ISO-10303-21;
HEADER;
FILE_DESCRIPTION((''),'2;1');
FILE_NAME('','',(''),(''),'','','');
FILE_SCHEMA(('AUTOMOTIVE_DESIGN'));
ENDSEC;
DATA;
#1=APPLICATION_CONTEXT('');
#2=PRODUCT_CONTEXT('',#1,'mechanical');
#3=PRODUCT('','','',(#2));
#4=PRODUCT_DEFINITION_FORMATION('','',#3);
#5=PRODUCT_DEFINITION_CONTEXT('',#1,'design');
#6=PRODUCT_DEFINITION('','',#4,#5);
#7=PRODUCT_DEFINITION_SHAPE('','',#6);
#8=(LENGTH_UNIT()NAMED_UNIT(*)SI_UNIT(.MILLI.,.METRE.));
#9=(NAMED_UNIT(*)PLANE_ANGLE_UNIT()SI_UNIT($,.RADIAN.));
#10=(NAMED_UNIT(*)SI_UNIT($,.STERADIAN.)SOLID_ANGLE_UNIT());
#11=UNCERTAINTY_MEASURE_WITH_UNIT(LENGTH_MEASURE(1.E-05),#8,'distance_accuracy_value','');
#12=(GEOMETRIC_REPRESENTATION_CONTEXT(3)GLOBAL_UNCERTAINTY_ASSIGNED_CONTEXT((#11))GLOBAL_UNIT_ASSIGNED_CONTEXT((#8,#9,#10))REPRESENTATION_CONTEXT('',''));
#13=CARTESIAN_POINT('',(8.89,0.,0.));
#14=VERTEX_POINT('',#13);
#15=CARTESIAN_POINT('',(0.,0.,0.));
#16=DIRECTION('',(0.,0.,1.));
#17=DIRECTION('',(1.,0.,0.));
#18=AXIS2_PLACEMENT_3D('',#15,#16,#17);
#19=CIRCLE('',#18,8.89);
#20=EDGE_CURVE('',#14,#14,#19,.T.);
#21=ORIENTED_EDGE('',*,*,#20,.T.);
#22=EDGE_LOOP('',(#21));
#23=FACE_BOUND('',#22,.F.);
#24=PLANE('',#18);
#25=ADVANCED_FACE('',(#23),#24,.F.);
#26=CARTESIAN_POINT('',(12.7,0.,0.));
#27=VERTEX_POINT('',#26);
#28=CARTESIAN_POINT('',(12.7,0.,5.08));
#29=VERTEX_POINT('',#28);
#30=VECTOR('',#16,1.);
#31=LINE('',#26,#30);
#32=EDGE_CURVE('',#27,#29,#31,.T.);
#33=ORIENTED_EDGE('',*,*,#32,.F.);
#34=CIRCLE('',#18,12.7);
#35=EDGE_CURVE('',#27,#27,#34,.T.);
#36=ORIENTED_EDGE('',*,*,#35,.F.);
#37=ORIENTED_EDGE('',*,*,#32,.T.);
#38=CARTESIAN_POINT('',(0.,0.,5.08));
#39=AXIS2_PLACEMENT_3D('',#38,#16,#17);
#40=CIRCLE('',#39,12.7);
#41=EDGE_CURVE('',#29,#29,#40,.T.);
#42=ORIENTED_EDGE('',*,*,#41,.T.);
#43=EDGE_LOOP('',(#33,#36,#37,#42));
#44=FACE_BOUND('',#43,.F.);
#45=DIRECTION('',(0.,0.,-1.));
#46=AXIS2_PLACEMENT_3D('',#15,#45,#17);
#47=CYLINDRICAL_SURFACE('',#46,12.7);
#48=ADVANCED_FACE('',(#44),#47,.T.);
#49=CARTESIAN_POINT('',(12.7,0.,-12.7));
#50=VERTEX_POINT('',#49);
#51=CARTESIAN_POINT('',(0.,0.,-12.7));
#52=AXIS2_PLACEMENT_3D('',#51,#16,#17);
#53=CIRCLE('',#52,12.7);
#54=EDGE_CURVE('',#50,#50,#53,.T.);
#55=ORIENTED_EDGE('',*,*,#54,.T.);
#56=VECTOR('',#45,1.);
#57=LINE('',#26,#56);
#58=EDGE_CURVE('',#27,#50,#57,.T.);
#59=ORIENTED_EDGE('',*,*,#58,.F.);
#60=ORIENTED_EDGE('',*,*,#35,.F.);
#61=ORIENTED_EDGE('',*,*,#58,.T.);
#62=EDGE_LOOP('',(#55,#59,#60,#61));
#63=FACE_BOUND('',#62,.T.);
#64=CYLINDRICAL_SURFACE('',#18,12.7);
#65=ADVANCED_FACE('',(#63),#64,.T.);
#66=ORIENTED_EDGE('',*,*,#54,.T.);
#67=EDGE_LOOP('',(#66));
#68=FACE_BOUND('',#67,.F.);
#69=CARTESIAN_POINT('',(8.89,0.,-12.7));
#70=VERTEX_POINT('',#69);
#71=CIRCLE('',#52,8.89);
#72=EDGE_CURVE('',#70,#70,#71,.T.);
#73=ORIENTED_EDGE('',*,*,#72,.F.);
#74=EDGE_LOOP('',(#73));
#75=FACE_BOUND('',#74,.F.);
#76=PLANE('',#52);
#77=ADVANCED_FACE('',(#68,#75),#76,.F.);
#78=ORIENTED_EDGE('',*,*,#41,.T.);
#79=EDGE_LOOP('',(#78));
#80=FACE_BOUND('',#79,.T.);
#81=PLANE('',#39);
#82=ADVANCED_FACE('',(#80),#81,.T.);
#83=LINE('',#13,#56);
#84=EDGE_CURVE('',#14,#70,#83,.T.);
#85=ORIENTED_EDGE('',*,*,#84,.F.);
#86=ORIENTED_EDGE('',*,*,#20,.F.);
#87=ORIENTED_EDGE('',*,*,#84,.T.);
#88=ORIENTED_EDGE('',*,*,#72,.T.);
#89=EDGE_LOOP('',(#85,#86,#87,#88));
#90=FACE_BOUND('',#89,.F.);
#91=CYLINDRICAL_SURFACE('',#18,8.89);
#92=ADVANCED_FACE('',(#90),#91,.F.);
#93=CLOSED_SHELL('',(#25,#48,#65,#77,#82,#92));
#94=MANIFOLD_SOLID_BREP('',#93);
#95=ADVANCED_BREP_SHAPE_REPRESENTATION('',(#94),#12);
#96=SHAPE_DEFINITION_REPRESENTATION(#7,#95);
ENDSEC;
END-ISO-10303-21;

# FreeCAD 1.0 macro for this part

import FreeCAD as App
import Part
import Sketcher

V = App.Vector
Q = App.Units.Quantity

doc = App.newDocument("Part")
body = doc.addObject("PartDesign::Body", "Body")

sketch1 = body.newObject("Sketcher::SketchObject", "Sketch")
sketch1.AttachmentSupport = (doc.getObject("XY_Plane"), [""])
sketch1.MapMode = "FlatFace"
sketch1.addGeometry(Part.Circle(V(0, 0, 0), V(0, 0, 1), 13), False)
sketch1.addGeometry(Part.Circle(V(0, 0, 0), V(0, 0, 1), 9), False)
sketch1.addConstraint(Sketcher.Constraint("Coincident", 0, 3, -1, 1))
sketch1.addConstraint(Sketcher.Constraint("Coincident", 1, 3, -1, 1))
sketch1.addConstraint(Sketcher.Constraint("Diameter", 0, Q("1 in")))
sketch1.addConstraint(Sketcher.Constraint("Diameter", 1, Q("0.7 in")))
pad1 = body.newObject("PartDesign::Pad", "Pad")
pad1.Profile = sketch1
pad1.Length = Q("0.5 in")
pad1.Reversed = True

sketch2 = body.newObject("Sketcher::SketchObject", "Sketch001")
sketch2.AttachmentSupport = (doc.getObject("XY_Plane"), [""])
sketch2.MapMode = "FlatFace"
sketch2.addGeometry(Part.Circle(V(0, 0, 0), V(0, 0, 1), 13), False)
sketch2.addConstraint(Sketcher.Constraint("Coincident", 0, 3, -1, 1))
sketch2.addConstraint(Sketcher.Constraint("Diameter", 0, Q("1 in")))
pad2 = body.newObject("PartDesign::Pad", "Pad001")
pad2.Profile = sketch2
pad2.Length = Q("0.2 in")

doc.recompute()
